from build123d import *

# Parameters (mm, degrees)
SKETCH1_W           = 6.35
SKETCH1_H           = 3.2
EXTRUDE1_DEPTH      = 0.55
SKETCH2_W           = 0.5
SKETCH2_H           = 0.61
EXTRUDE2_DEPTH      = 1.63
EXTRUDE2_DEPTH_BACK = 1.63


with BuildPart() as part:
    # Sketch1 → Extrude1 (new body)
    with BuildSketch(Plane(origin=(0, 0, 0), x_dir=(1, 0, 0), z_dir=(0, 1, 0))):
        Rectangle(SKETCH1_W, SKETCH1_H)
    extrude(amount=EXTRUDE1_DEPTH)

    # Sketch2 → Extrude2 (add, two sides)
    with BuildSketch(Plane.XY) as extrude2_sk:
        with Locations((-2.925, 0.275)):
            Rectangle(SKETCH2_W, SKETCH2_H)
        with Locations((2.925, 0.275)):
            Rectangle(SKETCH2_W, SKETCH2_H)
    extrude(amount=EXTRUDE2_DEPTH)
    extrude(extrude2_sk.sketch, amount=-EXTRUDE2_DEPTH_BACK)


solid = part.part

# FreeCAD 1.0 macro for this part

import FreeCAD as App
import Part
import Sketcher
Q = App.Units.Quantity

doc = App.newDocument("Part")
body = doc.addObject("PartDesign::Body", "Body")

sketch1 = body.newObject("Sketcher::SketchObject", "Sketch")
sketch1.AttachmentSupport = (doc.getObject("XZ_Plane"), [""])
sketch1.MapMode = "FlatFace"
sketch1.addGeometry([
    Part.LineSegment(App.Vector(-3.2, -1.6, 0), App.Vector(-3.2, 1.6, 0)),
    Part.LineSegment(App.Vector(-3.2, 1.6, 0), App.Vector(3.2, 1.6, 0)),
    Part.LineSegment(App.Vector(3.2, 1.6, 0), App.Vector(3.2, -1.6, 0)),
    Part.LineSegment(App.Vector(3.2, -1.6, 0), App.Vector(-3.2, -1.6, 0)),
], False)
sketch1.addConstraint([
    Sketcher.Constraint("Coincident", 0, 2, 1, 1),
    Sketcher.Constraint("Coincident", 1, 2, 2, 1),
    Sketcher.Constraint("Coincident", 2, 2, 3, 1),
    Sketcher.Constraint("Coincident", 3, 2, 0, 1),
    Sketcher.Constraint("Vertical", 0),
    Sketcher.Constraint("Horizontal", 1),
    Sketcher.Constraint("Vertical", 2),
    Sketcher.Constraint("Horizontal", 3),
    Sketcher.Constraint("Symmetric", 0, 2, 2, 2, -1, 1),
    Sketcher.Constraint("DistanceY", 0, 1, 0, 2, Q("3.2 mm")),
    Sketcher.Constraint("DistanceX", 1, 1, 1, 2, Q("6.35 mm")),
])
pad1 = body.newObject("PartDesign::Pad", "Pad")
pad1.Profile = sketch1
pad1.Length = 0.55
pad1.Reversed = True

sketch2 = body.newObject("Sketcher::SketchObject", "Sketch001")
sketch2.AttachmentSupport = (doc.getObject("XY_Plane"), [""])
sketch2.MapMode = "FlatFace"
sketch2.addGeometry([
    Part.LineSegment(App.Vector(-3.2, 0.6, 0), App.Vector(-3.2, 0, 0)),
    Part.LineSegment(App.Vector(-3.2, 0, 0), App.Vector(-2.7, 0, 0)),
    Part.LineSegment(App.Vector(-2.7, 0, 0), App.Vector(-2.7, 0.6, 0)),
    Part.LineSegment(App.Vector(-2.7, 0.6, 0), App.Vector(-3.2, 0.6, 0)),
    Part.LineSegment(App.Vector(2.7, 0.6, 0), App.Vector(2.7, 0, 0)),
    Part.LineSegment(App.Vector(2.7, 0, 0), App.Vector(3.2, 0, 0)),
    Part.LineSegment(App.Vector(3.2, 0, 0), App.Vector(3.2, 0.6, 0)),
    Part.LineSegment(App.Vector(3.2, 0.6, 0), App.Vector(2.7, 0.6, 0)),
], False)
sketch2.addConstraint([
    Sketcher.Constraint("Coincident", 0, 2, 1, 1),
    Sketcher.Constraint("Coincident", 1, 2, 2, 1),
    Sketcher.Constraint("Coincident", 2, 2, 3, 1),
    Sketcher.Constraint("Coincident", 3, 2, 0, 1),
    Sketcher.Constraint("Coincident", 4, 2, 5, 1),
    Sketcher.Constraint("Coincident", 5, 2, 6, 1),
    Sketcher.Constraint("Coincident", 6, 2, 7, 1),
    Sketcher.Constraint("Coincident", 7, 2, 4, 1),
    Sketcher.Constraint("Vertical", 0),
    Sketcher.Constraint("Horizontal", 1),
    Sketcher.Constraint("Vertical", 2),
    Sketcher.Constraint("Horizontal", 3),
    Sketcher.Constraint("Vertical", 4),
    Sketcher.Constraint("Horizontal", 5),
    Sketcher.Constraint("Vertical", 6),
    Sketcher.Constraint("Horizontal", 7),
    Sketcher.Constraint("Symmetric", 1, 2, 4, 2, -2),
    Sketcher.Constraint("Symmetric", 3, 2, 6, 2, -2),
    Sketcher.Constraint("DistanceX", 1, 1, 1, 2, Q("0.5 mm")),
    Sketcher.Constraint("DistanceY", 0, 2, 0, 1, Q("0.61 mm")),
    Sketcher.Constraint("DistanceY", 0, 2, -1, 1, Q("0.03 mm")),
    Sketcher.Constraint("DistanceX", 1, 2, 4, 2, Q("5.35 mm")),
])
pad2 = body.newObject("PartDesign::Pad", "Pad001")
pad2.Profile = sketch2
pad2.Type = "TwoLengths"
pad2.Length = 1.63
pad2.Length2 = 1.63

doc.recompute()
